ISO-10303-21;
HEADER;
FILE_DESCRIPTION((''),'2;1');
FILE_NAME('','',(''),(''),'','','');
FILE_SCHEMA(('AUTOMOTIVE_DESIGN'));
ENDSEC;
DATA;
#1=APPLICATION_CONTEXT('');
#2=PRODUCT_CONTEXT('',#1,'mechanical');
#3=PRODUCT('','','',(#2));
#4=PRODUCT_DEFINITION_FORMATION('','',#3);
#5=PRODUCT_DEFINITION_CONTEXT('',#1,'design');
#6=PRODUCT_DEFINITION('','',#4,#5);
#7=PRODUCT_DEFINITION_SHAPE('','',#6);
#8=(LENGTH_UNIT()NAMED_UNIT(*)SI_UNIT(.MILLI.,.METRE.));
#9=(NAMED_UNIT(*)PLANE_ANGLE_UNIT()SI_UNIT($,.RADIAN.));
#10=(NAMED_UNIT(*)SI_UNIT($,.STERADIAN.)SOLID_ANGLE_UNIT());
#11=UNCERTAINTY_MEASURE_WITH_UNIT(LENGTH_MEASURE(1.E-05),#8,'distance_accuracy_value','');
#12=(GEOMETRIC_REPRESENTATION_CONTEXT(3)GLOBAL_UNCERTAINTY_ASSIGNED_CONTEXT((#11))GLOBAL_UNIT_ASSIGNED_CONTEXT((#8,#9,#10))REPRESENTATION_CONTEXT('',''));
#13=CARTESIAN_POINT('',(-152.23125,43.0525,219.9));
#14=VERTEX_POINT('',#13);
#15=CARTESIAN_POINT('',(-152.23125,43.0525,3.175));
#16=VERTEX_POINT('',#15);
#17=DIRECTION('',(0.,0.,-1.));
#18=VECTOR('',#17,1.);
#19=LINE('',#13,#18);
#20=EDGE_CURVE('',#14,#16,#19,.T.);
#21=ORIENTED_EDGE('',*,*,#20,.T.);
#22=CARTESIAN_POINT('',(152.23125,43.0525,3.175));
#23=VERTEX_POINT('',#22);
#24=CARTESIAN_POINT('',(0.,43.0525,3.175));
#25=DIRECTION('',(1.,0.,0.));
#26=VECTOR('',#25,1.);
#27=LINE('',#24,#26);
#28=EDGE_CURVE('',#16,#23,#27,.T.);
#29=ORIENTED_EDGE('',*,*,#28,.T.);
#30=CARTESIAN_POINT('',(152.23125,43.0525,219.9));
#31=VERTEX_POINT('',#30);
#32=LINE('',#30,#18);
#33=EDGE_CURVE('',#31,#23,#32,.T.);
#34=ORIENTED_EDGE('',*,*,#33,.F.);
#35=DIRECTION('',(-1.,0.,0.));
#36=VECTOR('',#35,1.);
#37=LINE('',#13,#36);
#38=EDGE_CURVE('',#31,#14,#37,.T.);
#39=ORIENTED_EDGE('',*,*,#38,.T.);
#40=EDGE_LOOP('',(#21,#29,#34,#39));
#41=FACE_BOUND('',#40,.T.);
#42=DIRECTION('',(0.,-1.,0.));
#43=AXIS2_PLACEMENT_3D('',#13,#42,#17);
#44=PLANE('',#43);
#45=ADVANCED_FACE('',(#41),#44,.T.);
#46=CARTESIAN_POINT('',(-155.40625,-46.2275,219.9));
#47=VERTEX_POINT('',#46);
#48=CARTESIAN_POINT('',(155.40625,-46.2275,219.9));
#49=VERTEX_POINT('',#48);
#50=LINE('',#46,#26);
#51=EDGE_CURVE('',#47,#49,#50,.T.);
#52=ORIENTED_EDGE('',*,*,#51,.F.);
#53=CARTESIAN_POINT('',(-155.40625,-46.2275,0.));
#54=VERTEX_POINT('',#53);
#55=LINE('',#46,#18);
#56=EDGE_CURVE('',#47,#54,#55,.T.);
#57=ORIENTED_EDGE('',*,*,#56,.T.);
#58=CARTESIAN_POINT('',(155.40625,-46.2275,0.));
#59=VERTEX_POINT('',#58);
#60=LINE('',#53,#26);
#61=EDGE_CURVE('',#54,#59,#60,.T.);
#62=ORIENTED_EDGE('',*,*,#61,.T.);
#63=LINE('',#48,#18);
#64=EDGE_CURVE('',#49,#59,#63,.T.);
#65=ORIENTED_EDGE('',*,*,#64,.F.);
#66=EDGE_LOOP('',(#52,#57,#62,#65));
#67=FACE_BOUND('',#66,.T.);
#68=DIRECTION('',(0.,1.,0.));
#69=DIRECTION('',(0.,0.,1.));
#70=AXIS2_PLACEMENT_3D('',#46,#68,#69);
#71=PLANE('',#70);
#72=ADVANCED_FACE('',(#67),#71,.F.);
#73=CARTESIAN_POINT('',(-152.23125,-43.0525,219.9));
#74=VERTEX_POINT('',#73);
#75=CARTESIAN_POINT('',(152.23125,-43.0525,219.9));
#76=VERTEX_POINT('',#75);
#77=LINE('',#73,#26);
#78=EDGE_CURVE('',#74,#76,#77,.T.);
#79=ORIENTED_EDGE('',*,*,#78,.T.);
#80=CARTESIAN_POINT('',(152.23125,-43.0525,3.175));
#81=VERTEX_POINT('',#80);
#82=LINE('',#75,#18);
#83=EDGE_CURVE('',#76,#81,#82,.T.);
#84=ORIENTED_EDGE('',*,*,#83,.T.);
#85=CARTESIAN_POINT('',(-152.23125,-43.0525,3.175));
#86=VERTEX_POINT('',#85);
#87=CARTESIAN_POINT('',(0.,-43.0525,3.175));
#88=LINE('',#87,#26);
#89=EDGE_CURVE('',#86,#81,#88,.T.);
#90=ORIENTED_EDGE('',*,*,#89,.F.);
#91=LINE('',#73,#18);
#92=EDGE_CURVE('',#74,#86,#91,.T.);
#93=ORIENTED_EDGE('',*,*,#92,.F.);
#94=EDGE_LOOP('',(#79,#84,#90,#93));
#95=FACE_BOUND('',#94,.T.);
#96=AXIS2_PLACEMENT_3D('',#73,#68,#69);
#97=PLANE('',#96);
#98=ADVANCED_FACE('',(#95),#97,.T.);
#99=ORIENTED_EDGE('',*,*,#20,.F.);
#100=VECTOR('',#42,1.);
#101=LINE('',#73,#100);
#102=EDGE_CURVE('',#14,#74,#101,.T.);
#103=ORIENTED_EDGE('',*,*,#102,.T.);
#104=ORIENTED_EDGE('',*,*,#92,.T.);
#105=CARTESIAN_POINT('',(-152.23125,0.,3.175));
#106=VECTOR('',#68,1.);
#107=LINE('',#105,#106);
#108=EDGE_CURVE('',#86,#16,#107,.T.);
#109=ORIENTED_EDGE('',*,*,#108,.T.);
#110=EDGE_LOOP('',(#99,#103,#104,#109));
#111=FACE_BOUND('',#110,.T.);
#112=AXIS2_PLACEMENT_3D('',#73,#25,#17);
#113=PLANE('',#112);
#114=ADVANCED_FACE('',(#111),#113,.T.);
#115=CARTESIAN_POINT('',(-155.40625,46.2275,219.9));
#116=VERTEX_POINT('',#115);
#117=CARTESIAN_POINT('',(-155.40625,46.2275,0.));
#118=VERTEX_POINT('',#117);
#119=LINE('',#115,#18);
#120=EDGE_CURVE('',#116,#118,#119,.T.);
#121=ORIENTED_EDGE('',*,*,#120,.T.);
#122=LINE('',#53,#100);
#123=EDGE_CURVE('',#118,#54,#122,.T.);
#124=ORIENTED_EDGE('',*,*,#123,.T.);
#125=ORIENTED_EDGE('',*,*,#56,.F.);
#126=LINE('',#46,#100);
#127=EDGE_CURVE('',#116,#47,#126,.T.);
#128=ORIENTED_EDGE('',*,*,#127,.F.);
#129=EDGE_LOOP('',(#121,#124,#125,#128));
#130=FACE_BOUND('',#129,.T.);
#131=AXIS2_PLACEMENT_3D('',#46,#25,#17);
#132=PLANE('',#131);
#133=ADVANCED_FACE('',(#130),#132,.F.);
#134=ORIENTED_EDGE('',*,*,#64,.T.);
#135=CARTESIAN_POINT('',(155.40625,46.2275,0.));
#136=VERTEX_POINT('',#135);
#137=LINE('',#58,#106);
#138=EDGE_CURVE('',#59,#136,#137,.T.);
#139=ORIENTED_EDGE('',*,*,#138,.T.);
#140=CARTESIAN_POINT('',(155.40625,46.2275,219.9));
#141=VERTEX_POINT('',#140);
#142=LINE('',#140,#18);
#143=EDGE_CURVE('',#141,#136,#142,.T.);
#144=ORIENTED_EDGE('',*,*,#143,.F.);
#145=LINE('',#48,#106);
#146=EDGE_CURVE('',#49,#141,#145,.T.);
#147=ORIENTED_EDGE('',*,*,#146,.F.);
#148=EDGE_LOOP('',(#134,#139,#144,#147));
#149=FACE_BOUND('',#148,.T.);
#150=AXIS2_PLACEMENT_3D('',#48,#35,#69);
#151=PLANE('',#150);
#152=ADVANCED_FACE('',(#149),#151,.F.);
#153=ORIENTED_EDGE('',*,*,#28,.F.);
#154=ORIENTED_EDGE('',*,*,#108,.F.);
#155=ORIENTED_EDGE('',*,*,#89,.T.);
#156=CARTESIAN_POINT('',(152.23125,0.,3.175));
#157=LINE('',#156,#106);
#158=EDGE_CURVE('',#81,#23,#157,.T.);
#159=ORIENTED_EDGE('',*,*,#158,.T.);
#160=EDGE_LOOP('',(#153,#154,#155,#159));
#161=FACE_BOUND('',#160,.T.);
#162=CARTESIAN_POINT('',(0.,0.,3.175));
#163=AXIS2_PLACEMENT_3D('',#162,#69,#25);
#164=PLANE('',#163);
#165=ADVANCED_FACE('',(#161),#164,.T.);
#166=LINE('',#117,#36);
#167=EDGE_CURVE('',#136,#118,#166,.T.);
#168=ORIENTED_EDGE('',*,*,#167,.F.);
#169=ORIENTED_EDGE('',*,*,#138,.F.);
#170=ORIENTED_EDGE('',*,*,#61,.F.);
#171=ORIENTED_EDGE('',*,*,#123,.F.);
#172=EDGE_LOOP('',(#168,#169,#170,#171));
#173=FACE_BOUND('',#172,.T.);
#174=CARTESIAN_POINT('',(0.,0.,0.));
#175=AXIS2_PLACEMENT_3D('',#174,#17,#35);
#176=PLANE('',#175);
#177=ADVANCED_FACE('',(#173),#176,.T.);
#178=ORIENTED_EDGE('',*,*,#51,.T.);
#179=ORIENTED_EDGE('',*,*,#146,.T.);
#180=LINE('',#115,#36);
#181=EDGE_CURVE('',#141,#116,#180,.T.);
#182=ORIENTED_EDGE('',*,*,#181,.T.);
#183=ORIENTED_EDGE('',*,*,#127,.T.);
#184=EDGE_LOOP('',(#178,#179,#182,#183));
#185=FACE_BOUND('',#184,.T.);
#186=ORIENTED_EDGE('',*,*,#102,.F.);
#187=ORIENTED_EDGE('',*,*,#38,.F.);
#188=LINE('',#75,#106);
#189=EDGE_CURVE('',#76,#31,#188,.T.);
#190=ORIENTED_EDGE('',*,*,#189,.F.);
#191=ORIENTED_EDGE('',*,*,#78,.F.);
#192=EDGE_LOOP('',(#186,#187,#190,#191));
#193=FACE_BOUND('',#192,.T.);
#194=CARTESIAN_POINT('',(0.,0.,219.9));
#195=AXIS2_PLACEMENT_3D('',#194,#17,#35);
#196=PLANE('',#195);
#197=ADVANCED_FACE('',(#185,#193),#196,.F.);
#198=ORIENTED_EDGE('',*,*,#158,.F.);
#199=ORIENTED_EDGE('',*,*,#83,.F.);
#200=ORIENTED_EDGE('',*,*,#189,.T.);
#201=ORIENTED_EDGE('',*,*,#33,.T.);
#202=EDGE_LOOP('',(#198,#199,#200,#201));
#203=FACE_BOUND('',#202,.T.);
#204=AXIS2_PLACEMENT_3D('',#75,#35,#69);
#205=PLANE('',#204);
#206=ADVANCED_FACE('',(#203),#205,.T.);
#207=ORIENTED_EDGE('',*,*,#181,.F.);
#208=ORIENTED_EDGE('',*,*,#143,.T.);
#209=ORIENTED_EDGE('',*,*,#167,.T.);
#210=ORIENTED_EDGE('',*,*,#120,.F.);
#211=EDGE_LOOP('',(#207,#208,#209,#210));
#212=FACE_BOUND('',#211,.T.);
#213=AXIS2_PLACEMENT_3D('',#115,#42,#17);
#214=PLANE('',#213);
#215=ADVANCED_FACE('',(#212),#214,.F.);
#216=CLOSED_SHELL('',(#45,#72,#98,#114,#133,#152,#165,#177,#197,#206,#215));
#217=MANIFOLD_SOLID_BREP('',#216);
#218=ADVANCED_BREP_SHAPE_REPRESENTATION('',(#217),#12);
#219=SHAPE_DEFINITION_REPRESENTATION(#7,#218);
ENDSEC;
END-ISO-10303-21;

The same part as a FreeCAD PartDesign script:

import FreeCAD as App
import Part
import Sketcher
from FreeCAD import Vector


def add_polygon(sketch, points):
    """Adds a closed chain of lines whose ends are joined by coincident constraints."""
    first, n = sketch.GeometryCount, len(points)
    for a, b in zip(points, points[1:] + points[:1]):
        sketch.addGeometry(Part.LineSegment(App.Vector(*a, 0), App.Vector(*b, 0)), False)
    for i in range(n):
        sketch.addConstraint(Sketcher.Constraint("Coincident", first + i, 2, first + (i + 1) % n, 1))

doc = App.newDocument("Part")
body = doc.addObject("PartDesign::Body", "Body")

# Sketch on XY plane
sketch1 = body.newObject("Sketcher::SketchObject", "Sketch")
sketch1.AttachmentSupport = (doc.getObject("XY_Plane"), [""])
sketch1.MapMode = "FlatFace"
add_polygon(sketch1, [(-155, 46), (-155, -46), (155, -46), (155, 46)])  # lines 0-3
add_polygon(sketch1, [(152, -43), (-152, -43), (-152, 43), (152, 43)])  # lines 4-7
sketch1.addConstraint(Sketcher.Constraint("Vertical", 0))
sketch1.addConstraint(Sketcher.Constraint("Horizontal", 1))
sketch1.addConstraint(Sketcher.Constraint("Vertical", 2))
sketch1.addConstraint(Sketcher.Constraint("Horizontal", 3))
sketch1.addConstraint(Sketcher.Constraint("Horizontal", 4))
sketch1.addConstraint(Sketcher.Constraint("Vertical", 5))
sketch1.addConstraint(Sketcher.Constraint("Horizontal", 6))
sketch1.addConstraint(Sketcher.Constraint("Vertical", 7))
sketch1.addConstraint(Sketcher.Constraint("Symmetric", 0, 2, 2, 2, -1, 1))
sketch1.addConstraint(Sketcher.Constraint("Symmetric", 4, 2, 6, 2, -1, 1))
sketch1.addConstraint(Sketcher.Constraint("DistanceY", 0, 2, 0, 1, 92.455))
sketch1.addConstraint(Sketcher.Constraint("DistanceY", 5, 1, 5, 2, 86.105))
sketch1.addConstraint(Sketcher.Constraint("DistanceX", 1, 1, 1, 2, 310.8125))
sketch1.addConstraint(Sketcher.Constraint("DistanceX", 4, 2, 4, 1, 304.4625))
pad1 = body.newObject("PartDesign::Pad", "Pad")
pad1.Profile = sketch1
pad1.Length = 219.9

# Sketch on XY plane
sketch2 = body.newObject("Sketcher::SketchObject", "Sketch001")
sketch2.AttachmentSupport = (doc.getObject("XY_Plane"), [""])
sketch2.MapMode = "FlatFace"
add_polygon(sketch2, [(-152, 43), (-152, -43), (152, -43), (152, 43)])  # lines 0-3
sketch2.addConstraint(Sketcher.Constraint("Vertical", 0))
sketch2.addConstraint(Sketcher.Constraint("Horizontal", 1))
sketch2.addConstraint(Sketcher.Constraint("Vertical", 2))
sketch2.addConstraint(Sketcher.Constraint("Horizontal", 3))
sketch2.addConstraint(Sketcher.Constraint("Symmetric", 0, 2, 2, 2, -1, 1))
sketch2.addConstraint(Sketcher.Constraint("DistanceY", 0, 2, 0, 1, 86.105))
sketch2.addConstraint(Sketcher.Constraint("DistanceX", 1, 1, 1, 2, 304.4625))
pad2 = body.newObject("PartDesign::Pad", "Pad001")
pad2.Profile = sketch2
pad2.Length = 3.175

doc.recompute()
